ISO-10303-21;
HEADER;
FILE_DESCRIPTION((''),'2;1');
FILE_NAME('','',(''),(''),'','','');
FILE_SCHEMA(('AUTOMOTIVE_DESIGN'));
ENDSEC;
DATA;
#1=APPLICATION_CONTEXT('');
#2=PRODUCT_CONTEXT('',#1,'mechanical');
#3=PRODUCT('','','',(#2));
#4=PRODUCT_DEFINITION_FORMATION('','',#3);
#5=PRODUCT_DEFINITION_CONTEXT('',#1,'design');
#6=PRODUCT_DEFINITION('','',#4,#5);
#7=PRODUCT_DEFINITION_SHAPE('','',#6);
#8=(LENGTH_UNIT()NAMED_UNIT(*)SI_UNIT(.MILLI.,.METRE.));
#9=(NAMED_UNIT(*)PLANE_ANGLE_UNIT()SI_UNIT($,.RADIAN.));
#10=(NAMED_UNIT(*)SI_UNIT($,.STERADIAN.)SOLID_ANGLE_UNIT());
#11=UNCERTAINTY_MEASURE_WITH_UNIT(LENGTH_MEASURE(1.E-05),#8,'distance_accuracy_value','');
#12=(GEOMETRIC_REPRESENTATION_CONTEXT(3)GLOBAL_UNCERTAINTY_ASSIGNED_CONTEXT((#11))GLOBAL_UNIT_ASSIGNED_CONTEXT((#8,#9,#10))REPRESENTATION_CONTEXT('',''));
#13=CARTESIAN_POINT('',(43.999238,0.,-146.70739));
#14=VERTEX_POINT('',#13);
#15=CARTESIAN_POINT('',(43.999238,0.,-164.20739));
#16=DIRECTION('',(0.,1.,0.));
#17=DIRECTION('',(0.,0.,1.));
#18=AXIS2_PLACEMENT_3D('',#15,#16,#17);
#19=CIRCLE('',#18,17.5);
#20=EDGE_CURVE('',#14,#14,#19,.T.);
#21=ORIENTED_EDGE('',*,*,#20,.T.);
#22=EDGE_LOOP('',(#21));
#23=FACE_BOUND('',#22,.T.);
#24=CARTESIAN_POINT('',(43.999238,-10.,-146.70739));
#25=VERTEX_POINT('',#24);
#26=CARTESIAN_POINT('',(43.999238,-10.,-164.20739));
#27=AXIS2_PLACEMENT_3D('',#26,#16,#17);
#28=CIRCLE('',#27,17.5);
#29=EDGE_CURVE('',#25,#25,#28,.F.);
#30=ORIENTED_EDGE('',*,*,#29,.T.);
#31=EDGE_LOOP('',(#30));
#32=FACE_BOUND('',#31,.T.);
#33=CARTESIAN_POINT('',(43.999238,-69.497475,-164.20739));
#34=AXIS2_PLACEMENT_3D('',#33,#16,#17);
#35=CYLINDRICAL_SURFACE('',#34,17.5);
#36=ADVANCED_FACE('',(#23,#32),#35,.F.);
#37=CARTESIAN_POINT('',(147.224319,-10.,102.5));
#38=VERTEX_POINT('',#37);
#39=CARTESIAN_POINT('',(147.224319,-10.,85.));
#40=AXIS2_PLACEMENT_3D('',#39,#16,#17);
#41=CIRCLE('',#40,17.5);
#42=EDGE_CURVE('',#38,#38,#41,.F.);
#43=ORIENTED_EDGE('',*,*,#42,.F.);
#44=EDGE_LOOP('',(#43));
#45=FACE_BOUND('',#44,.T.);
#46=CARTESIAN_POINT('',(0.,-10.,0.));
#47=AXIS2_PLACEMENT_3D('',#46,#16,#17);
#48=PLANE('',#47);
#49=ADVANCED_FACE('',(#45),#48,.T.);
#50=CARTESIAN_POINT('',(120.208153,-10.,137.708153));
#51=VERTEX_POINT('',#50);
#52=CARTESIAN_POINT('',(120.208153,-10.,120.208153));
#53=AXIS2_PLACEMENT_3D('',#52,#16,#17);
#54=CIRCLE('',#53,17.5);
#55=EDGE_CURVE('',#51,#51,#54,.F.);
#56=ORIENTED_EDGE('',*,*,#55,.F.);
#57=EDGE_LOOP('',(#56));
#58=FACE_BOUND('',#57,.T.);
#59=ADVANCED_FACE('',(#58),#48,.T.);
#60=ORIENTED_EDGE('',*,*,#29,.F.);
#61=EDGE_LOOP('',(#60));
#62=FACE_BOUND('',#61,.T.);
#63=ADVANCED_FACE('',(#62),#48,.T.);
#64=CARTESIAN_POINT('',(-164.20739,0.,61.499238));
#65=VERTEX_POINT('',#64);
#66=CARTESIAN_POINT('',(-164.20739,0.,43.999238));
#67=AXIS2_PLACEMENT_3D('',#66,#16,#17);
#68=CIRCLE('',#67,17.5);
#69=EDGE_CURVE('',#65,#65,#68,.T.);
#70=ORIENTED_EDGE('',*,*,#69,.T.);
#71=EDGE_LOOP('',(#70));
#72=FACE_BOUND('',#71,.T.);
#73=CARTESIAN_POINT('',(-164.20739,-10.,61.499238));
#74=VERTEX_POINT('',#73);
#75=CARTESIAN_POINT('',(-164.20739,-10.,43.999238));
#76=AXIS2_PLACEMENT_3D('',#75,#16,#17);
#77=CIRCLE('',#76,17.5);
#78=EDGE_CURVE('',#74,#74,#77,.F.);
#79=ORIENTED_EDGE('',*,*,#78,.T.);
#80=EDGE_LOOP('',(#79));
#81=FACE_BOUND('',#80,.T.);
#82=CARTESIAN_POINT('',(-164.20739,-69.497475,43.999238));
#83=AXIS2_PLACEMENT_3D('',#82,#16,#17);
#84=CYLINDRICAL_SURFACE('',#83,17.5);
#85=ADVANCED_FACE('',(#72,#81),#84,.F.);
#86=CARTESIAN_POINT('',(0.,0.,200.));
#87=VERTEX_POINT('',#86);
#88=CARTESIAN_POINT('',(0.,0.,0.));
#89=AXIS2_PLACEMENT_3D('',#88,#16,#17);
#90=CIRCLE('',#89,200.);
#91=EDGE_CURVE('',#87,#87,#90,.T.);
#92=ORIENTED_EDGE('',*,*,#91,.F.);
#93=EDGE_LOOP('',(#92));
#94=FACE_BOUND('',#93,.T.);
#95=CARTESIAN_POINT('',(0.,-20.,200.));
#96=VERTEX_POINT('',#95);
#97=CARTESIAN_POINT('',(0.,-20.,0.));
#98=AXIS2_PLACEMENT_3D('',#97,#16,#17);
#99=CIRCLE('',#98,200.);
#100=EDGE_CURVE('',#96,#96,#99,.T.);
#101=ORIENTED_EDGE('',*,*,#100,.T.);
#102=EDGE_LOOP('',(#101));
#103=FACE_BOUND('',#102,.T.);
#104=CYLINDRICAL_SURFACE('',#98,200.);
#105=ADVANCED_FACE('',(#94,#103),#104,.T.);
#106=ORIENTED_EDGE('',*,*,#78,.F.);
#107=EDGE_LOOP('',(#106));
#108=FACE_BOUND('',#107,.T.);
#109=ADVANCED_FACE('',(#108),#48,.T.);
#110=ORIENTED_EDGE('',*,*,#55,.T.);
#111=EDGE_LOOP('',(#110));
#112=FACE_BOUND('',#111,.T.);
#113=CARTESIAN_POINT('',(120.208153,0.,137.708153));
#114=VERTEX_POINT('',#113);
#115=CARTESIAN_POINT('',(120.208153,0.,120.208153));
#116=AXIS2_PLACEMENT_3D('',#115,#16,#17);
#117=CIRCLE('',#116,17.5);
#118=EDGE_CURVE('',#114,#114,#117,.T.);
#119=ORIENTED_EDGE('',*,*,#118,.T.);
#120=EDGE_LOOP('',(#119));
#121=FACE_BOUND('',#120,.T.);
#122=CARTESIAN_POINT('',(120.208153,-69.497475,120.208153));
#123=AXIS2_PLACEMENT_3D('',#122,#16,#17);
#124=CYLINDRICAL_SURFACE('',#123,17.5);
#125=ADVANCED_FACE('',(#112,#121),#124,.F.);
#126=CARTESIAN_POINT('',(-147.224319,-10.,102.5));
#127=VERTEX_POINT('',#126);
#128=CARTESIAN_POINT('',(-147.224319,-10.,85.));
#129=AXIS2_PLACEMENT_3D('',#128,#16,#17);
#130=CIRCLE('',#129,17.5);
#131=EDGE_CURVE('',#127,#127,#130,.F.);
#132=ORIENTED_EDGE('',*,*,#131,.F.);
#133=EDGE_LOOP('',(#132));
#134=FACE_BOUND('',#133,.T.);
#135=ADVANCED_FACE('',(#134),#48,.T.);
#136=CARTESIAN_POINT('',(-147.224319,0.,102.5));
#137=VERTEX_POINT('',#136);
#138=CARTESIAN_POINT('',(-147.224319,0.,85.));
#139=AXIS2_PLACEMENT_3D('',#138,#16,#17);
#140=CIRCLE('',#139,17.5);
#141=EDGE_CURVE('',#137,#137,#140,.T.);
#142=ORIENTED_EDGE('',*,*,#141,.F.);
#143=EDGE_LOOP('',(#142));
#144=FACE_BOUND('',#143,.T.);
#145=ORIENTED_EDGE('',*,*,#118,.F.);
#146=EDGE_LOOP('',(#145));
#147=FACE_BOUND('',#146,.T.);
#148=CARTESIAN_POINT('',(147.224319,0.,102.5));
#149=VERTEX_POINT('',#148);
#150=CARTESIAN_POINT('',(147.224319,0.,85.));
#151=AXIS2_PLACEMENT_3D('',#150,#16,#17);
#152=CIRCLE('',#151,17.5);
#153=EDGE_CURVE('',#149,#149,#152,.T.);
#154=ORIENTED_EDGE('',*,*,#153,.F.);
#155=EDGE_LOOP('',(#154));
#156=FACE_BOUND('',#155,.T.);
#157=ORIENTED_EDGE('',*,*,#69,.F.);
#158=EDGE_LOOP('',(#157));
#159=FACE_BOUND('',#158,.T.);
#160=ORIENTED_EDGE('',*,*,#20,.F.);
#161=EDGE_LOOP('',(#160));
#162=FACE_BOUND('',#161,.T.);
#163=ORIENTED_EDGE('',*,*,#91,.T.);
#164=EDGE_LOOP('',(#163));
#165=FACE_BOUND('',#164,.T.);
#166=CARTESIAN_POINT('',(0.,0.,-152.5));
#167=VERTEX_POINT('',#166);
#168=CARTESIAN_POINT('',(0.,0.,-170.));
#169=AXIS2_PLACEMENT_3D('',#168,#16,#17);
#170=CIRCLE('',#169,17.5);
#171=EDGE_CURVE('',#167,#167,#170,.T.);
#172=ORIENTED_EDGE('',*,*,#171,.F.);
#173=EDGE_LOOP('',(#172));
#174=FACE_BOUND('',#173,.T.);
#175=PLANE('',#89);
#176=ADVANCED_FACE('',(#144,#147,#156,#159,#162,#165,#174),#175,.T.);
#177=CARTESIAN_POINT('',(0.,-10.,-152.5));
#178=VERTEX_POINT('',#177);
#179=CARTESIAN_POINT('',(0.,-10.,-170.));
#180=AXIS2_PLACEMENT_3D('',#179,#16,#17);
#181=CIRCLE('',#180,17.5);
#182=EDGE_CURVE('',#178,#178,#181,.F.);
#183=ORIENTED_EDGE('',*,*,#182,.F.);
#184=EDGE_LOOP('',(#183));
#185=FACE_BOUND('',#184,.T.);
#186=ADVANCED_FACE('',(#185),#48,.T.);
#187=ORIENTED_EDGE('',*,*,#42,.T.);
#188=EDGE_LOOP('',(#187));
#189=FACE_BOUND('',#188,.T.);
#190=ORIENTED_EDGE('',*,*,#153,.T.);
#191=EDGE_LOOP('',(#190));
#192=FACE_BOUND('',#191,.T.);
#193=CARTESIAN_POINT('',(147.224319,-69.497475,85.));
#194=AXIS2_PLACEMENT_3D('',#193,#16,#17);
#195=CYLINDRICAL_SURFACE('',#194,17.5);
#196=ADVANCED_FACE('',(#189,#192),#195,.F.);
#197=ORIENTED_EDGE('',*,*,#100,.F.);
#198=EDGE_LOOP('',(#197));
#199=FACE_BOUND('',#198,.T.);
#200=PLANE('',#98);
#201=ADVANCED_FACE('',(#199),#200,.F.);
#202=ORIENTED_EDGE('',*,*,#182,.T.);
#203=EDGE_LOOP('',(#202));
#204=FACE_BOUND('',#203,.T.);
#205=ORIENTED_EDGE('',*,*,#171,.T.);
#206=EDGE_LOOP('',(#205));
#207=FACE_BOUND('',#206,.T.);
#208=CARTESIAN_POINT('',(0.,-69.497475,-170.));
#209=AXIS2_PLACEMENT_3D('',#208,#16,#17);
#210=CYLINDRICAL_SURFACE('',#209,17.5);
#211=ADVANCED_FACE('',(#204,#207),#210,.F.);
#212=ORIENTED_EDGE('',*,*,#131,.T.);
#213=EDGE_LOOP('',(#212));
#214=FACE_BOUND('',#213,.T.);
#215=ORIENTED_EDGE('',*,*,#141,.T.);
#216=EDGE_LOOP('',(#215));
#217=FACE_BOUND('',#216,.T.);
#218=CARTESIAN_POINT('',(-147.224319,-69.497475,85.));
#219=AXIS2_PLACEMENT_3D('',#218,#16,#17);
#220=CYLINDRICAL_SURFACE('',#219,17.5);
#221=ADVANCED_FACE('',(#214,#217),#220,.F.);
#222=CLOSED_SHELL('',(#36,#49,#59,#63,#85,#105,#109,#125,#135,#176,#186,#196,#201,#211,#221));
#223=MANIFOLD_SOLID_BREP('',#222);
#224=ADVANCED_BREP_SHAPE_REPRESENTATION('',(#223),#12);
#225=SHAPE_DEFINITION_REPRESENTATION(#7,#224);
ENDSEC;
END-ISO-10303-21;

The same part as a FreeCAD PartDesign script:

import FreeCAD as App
import Part
import Sketcher
Q = App.Units.Quantity

doc = App.newDocument("Part")
body = doc.addObject("PartDesign::Body", "Body")

# Sketch on XZ plane
sketch1 = body.newObject("Sketcher::SketchObject", "Sketch")
sketch1.AttachmentSupport = (doc.getObject("XZ_Plane"), [""])
sketch1.MapMode = "FlatFace"
sketch1.addGeometry(Part.Circle(App.Vector(0, 0, 0), App.Vector(0, 0, 1), 200), False)
sketch1.addConstraint(Sketcher.Constraint("Coincident", 0, 3, -1, 1))
sketch1.addConstraint(Sketcher.Constraint("Diameter", 0, Q("400 mm")))
pad1 = body.newObject("PartDesign::Pad", "Pad")
pad1.Profile = sketch1
pad1.Length = 20

# Sketch on XZ plane
sketch2 = body.newObject("Sketcher::SketchObject", "Sketch001")
sketch2.AttachmentSupport = (doc.getObject("XZ_Plane"), [""])
sketch2.MapMode = "FlatFace"
sketch2.addGeometry(Part.Circle(App.Vector(0, -170, 0), App.Vector(0, 0, 1), 18), False)
sketch2.addGeometry(Part.Circle(App.Vector(44, -164, 0), App.Vector(0, 0, 1), 18), False)
sketch2.addGeometry(Part.Circle(App.Vector(147, 85, 0), App.Vector(0, 0, 1), 18), False)
sketch2.addGeometry(Part.Circle(App.Vector(120, 120, 0), App.Vector(0, 0, 1), 18), False)
sketch2.addGeometry(Part.Circle(App.Vector(-147, 85, 0), App.Vector(0, 0, 1), 18), False)
sketch2.addGeometry(Part.Circle(App.Vector(-164, 44, 0), App.Vector(0, 0, 1), 18), False)
sketch2.addConstraint(Sketcher.Constraint("Equal", 0, 1))
sketch2.addConstraint(Sketcher.Constraint("Equal", 1, 2))
sketch2.addConstraint(Sketcher.Constraint("Equal", 2, 3))
sketch2.addConstraint(Sketcher.Constraint("Equal", 3, 4))
sketch2.addConstraint(Sketcher.Constraint("Equal", 4, 5))
sketch2.addConstraint(Sketcher.Constraint("Symmetric", 2, 3, 4, 3, -2))
sketch2.addConstraint(Sketcher.Constraint("PointOnObject", 0, 3, -2))
sketch2.addConstraint(Sketcher.Constraint("Diameter", 0, Q("35 mm")))
sketch2.addConstraint(Sketcher.Constraint("DistanceY", 0, 3, -1, 1, Q("170 mm")))
sketch2.addConstraint(Sketcher.Constraint("DistanceY", -1, 1, 2, 3, Q("85 mm")))
sketch2.addConstraint(Sketcher.Constraint("DistanceY", 1, 3, -1, 1, Q("164.20739 mm")))
sketch2.addConstraint(Sketcher.Constraint("DistanceX", -1, 1, 2, 3, Q("147.224319 mm")))
sketch2.addConstraint(Sketcher.Constraint("DistanceX", 5, 3, -1, 1, Q("164.20739 mm")))
sketch2.addConstraint(Sketcher.Constraint("DistanceX", 1, 3, 2, 3, Q("103.225081 mm")))
sketch2.addConstraint(Sketcher.Constraint("DistanceX", 4, 3, 3, 3, Q("267.432471 mm")))
sketch2.addConstraint(Sketcher.Constraint("DistanceY", 1, 3, 5, 3, Q("208.206628 mm")))
sketch2.addConstraint(Sketcher.Constraint("DistanceY", -1, 1, 3, 3, Q("120.208153 mm")))
pocket1 = body.newObject("PartDesign::Pocket", "Pocket")
pocket1.Profile = sketch2
pocket1.Length = 10
pocket1.Reversed = True

doc.recompute()
